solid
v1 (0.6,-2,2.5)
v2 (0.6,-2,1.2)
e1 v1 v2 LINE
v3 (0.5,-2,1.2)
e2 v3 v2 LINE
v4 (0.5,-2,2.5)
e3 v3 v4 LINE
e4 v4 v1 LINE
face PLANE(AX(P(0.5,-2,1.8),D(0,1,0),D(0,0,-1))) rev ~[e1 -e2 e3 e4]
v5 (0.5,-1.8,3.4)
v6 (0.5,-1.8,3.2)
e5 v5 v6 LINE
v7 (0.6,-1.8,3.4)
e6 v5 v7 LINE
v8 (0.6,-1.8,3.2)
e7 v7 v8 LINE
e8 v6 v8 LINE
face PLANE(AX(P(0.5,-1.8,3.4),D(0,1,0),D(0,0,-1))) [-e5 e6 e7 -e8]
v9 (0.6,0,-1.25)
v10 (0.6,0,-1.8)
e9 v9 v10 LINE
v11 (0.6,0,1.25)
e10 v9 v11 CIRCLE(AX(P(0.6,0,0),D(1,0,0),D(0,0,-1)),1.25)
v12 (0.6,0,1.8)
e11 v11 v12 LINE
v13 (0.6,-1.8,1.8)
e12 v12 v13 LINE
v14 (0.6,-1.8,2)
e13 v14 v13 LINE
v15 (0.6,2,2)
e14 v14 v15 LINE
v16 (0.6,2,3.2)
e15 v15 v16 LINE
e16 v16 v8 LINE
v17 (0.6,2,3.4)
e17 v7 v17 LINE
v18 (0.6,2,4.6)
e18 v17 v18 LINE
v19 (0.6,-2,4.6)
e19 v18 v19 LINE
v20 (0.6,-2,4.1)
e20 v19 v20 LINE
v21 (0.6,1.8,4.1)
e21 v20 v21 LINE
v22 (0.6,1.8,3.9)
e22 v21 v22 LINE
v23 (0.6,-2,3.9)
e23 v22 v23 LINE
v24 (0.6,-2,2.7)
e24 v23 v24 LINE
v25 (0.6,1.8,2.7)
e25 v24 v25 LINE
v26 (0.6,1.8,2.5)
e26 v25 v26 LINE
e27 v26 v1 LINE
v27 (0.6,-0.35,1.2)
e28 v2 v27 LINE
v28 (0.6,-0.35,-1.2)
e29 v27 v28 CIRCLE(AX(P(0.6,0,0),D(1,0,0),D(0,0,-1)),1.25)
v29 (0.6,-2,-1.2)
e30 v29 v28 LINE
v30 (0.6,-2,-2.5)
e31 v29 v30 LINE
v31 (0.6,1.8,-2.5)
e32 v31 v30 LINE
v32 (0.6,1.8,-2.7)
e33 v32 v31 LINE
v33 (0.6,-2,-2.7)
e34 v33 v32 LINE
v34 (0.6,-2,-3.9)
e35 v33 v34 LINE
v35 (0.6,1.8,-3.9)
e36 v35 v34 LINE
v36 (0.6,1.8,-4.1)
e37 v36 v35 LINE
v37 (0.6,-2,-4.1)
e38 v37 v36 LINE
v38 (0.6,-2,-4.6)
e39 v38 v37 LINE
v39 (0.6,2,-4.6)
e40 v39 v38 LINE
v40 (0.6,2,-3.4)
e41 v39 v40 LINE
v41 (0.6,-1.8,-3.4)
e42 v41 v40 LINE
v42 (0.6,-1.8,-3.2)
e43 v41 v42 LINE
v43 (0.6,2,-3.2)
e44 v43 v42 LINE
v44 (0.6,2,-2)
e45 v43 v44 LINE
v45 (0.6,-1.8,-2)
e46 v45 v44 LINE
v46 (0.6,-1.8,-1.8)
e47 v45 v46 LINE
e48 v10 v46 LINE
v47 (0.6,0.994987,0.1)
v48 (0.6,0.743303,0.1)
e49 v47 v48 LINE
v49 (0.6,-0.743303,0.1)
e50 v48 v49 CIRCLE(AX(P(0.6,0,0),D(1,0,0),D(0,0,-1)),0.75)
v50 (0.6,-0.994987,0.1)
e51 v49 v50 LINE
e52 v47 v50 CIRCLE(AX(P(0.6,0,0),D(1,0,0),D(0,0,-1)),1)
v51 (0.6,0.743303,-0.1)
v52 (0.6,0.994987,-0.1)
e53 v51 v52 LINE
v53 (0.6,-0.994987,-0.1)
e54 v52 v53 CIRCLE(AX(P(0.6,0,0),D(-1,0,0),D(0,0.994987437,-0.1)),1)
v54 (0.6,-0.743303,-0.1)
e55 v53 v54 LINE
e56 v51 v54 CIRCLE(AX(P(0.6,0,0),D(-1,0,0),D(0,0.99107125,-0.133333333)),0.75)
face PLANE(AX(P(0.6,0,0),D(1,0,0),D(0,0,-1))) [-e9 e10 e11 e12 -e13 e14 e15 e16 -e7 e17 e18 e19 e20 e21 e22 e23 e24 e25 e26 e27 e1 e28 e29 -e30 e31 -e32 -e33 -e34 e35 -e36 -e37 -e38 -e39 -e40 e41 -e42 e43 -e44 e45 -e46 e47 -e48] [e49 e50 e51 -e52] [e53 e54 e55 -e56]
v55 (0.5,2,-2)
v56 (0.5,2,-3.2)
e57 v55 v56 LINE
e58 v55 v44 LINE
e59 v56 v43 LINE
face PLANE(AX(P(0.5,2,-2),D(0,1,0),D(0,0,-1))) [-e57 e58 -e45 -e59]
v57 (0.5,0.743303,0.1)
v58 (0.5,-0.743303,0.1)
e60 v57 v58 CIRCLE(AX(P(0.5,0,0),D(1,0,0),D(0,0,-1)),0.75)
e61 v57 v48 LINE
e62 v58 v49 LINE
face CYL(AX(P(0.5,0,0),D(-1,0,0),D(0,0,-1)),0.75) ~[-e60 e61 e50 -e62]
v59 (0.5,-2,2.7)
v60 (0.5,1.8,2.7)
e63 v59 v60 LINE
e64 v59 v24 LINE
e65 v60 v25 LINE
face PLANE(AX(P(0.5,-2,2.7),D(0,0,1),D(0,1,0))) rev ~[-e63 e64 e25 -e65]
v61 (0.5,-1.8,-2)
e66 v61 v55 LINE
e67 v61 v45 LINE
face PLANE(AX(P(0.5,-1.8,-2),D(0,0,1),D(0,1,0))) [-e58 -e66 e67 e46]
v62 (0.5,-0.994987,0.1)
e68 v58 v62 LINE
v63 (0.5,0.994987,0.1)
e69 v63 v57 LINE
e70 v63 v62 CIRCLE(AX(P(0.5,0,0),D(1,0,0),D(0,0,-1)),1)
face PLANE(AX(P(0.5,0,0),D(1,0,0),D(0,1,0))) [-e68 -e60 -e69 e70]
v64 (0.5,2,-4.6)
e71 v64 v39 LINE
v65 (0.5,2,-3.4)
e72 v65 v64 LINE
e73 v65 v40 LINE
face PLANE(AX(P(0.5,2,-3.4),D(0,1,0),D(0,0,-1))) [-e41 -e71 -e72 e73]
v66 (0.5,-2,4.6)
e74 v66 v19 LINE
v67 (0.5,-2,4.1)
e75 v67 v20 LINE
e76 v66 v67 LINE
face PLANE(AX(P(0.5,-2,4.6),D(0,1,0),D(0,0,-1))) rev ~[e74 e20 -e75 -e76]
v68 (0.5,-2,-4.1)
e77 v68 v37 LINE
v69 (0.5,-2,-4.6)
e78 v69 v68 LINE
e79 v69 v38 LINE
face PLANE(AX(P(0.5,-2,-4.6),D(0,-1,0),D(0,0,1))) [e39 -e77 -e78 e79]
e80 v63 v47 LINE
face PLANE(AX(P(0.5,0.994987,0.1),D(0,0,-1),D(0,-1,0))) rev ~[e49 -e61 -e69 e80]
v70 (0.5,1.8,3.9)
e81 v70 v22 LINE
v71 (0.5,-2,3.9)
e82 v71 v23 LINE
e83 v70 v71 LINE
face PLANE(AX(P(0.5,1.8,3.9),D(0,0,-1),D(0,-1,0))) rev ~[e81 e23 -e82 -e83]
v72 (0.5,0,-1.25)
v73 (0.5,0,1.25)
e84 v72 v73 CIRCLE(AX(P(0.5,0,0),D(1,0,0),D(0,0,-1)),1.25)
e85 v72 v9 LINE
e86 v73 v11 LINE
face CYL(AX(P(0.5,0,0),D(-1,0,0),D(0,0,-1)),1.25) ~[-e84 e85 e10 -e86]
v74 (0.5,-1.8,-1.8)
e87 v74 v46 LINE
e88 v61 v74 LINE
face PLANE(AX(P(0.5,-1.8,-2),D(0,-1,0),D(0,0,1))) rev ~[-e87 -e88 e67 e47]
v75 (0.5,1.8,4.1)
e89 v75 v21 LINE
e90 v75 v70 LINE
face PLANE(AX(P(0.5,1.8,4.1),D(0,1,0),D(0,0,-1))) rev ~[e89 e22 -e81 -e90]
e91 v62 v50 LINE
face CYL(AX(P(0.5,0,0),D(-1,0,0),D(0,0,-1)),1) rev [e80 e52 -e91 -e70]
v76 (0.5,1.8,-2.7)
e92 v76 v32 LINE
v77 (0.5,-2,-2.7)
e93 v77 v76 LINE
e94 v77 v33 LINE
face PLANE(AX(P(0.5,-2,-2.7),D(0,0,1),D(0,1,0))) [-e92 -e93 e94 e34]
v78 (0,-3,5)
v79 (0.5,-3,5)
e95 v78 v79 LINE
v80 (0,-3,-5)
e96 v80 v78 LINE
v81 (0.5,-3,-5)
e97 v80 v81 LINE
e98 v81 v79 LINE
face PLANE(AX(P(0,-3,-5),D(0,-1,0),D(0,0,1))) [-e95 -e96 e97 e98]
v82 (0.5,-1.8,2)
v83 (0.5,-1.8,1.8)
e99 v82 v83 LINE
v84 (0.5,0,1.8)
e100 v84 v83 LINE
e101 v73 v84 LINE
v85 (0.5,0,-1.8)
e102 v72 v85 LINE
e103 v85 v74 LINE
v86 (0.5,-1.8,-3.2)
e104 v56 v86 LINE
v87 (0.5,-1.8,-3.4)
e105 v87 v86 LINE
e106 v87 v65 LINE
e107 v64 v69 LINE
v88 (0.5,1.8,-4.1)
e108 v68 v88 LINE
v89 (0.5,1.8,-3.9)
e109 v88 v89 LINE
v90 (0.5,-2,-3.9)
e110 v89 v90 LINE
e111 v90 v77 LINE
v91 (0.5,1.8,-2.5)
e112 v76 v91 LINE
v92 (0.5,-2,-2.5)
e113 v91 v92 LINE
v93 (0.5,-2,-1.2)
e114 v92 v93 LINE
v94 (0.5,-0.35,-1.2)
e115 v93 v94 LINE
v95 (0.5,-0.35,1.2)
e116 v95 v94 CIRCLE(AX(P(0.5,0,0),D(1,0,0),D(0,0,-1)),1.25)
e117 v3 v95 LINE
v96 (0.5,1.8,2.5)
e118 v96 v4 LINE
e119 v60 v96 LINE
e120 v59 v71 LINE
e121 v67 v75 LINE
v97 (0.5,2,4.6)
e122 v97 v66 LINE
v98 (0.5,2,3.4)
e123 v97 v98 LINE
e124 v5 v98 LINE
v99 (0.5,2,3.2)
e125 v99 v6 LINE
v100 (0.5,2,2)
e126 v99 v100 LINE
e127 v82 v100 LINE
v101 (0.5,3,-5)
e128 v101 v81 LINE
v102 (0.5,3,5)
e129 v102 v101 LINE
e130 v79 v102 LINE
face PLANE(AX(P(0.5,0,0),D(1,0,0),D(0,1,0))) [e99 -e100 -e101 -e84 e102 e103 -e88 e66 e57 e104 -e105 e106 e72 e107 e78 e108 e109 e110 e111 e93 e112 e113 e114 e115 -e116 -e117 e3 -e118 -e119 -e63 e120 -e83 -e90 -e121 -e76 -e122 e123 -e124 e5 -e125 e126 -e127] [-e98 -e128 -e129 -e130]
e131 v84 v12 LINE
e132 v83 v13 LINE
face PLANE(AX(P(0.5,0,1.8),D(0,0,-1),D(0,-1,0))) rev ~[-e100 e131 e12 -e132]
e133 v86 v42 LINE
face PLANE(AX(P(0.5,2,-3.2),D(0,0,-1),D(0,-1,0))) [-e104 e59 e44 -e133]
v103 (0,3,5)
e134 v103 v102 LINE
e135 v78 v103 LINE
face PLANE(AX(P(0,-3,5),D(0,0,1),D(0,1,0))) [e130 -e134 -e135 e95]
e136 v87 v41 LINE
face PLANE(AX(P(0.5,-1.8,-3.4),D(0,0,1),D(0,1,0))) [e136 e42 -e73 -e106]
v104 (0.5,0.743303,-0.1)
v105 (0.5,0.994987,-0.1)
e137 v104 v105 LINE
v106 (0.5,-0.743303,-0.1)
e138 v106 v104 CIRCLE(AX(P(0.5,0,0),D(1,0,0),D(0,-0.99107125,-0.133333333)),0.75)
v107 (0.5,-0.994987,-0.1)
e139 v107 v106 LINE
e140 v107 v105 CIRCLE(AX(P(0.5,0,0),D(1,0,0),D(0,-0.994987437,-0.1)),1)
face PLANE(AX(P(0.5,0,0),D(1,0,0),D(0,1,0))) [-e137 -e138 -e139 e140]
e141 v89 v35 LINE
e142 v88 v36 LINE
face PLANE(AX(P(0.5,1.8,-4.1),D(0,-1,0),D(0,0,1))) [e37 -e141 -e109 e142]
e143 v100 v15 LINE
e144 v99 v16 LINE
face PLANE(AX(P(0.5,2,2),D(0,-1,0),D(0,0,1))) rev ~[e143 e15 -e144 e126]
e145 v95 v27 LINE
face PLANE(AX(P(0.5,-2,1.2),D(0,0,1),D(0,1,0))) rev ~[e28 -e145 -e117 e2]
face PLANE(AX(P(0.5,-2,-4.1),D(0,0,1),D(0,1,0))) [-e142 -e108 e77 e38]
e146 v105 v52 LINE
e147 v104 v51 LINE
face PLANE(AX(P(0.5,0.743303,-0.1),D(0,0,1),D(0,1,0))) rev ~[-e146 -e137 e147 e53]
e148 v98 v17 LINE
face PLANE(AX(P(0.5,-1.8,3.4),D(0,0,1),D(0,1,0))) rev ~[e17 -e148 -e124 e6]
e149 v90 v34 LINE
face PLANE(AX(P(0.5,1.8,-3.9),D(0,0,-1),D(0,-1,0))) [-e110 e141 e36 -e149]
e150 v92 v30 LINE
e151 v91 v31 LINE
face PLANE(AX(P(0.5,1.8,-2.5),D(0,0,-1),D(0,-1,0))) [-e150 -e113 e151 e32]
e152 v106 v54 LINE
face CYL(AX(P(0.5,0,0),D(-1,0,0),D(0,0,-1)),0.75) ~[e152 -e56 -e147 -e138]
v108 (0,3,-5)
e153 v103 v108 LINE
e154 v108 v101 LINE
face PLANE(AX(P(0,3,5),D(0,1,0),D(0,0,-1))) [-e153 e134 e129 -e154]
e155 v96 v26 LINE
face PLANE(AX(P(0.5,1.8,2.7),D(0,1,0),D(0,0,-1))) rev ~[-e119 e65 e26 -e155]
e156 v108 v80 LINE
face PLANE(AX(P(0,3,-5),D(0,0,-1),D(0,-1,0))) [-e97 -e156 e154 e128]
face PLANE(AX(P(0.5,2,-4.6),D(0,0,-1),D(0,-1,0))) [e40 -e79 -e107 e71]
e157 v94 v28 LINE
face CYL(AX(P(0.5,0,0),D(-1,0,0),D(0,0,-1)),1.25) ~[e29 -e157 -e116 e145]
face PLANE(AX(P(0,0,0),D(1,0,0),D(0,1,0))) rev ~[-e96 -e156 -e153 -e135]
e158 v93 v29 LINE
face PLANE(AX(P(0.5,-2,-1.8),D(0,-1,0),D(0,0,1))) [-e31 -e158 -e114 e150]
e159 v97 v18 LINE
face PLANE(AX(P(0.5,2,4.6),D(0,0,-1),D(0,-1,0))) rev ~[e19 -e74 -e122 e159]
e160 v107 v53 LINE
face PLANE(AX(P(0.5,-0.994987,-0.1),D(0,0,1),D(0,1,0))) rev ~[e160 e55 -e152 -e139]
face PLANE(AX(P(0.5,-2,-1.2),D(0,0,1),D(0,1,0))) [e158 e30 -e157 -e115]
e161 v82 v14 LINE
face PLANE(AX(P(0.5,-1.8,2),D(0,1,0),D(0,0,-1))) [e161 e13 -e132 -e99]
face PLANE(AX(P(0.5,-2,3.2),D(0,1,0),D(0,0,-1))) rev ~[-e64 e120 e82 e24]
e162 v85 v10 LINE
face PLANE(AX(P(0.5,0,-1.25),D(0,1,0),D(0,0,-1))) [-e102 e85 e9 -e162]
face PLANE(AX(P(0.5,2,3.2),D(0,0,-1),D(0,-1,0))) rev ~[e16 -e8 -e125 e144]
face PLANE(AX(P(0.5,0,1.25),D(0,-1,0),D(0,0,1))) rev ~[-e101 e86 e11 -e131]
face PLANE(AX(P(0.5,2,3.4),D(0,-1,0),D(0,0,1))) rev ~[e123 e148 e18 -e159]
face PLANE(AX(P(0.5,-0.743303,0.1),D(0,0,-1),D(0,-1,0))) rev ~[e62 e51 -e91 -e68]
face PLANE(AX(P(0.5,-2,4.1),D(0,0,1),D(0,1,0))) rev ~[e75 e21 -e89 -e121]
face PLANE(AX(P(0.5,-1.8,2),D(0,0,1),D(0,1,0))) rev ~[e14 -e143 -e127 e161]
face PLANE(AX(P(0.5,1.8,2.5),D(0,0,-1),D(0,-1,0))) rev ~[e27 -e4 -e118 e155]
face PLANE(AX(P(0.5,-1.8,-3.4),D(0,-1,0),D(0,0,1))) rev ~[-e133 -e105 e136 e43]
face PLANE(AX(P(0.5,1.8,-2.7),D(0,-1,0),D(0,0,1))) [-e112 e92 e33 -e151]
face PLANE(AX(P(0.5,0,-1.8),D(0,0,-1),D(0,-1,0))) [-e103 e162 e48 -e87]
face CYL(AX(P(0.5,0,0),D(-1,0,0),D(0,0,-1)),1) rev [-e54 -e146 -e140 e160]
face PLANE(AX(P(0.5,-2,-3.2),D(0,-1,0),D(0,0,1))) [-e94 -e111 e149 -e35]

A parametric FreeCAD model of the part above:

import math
import FreeCAD as App
import Part
import Sketcher
from FreeCAD import Vector


def add_polygon(sketch, points):
    """Adds a closed chain of lines whose ends are joined by coincident constraints."""
    first, n = sketch.GeometryCount, len(points)
    for a, b in zip(points, points[1:] + points[:1]):
        sketch.addGeometry(Part.LineSegment(App.Vector(*a, 0), App.Vector(*b, 0)), False)
    for i in range(n):
        sketch.addConstraint(Sketcher.Constraint("Coincident", first + i, 2, first + (i + 1) % n, 1))

doc = App.newDocument("Part")
body = doc.addObject("PartDesign::Body", "Body")

sketch1 = body.newObject("Sketcher::SketchObject", "Sketch")
sketch1.AttachmentSupport = (doc.getObject("YZ_Plane"), [""])
sketch1.MapMode = "FlatFace"
add_polygon(sketch1, [(3, 5), (-3, 5), (-3, -5), (3, -5)])
sketch1.addConstraint([
    Sketcher.Constraint("Horizontal", 0),
    Sketcher.Constraint("Vertical", 1),
    Sketcher.Constraint("Horizontal", 2),
    Sketcher.Constraint("Vertical", 3),
    Sketcher.Constraint("Symmetric", 0, 2, 2, 2, -1, 1),
    Sketcher.Constraint("DistanceX", 0, 2, 0, 1, 6.0),
    Sketcher.Constraint("DistanceY", 1, 2, 1, 1, 10.0),
])
pad1 = body.newObject("PartDesign::Pad", "Pad")
pad1.Profile = sketch1
pad1.Length = 0.5

sketch2 = body.newObject("Sketcher::SketchObject", "Sketch001")
sketch2.AttachmentSupport = (doc.getObject("YZ_Plane"), [""])
sketch2.MapMode = "FlatFace"
sketch2.AttachmentOffset = App.Placement(Vector(0, 0, 0.5), App.Rotation())
sketch2.addGeometry([
    Part.ArcOfCircle(Part.Circle(Vector(0, 0, 0), Vector(0, 0, 1), 1.25), math.radians(106), math.radians(254)),
    Part.LineSegment(Vector(-0.35, -1.2, 0), Vector(-2, -1.2, 0)),
    Part.LineSegment(Vector(-2, -1.2, 0), Vector(-2, -2.5, 0)),
    Part.LineSegment(Vector(-2, -2.5, 0), Vector(1.8, -2.5, 0)),
    Part.LineSegment(Vector(1.8, -2.5, 0), Vector(1.8, -2.7, 0)),
    Part.LineSegment(Vector(1.8, -2.7, 0), Vector(-2, -2.7, 0)),
    Part.LineSegment(Vector(-2, -2.7, 0), Vector(-2, -3.9, 0)),
    Part.LineSegment(Vector(-2, -3.9, 0), Vector(1.8, -3.9, 0)),
    Part.LineSegment(Vector(1.8, -3.9, 0), Vector(1.8, -4.1, 0)),
    Part.LineSegment(Vector(1.8, -4.1, 0), Vector(-2, -4.1, 0)),
    Part.LineSegment(Vector(-2, -4.1, 0), Vector(-2, -4.6, 0)),
    Part.LineSegment(Vector(-2, -4.6, 0), Vector(2, -4.6, 0)),
    Part.LineSegment(Vector(2, -4.6, 0), Vector(2, -3.4, 0)),
    Part.LineSegment(Vector(2, -3.4, 0), Vector(-1.8, -3.4, 0)),
    Part.LineSegment(Vector(-1.8, -3.4, 0), Vector(-1.8, -3.2, 0)),
    Part.LineSegment(Vector(-1.8, -3.2, 0), Vector(2, -3.2, 0)),
    Part.LineSegment(Vector(2, -3.2, 0), Vector(2, -2, 0)),
    Part.LineSegment(Vector(2, -2, 0), Vector(-1.8, -2, 0)),
    Part.LineSegment(Vector(-1.8, -2, 0), Vector(-1.8, -1.8, 0)),
    Part.LineSegment(Vector(-1.8, -1.8, 0), Vector(0, -1.8, 0)),
    Part.LineSegment(Vector(0, -1.8, 0), Vector(0, -1.25, 0)),
    Part.ArcOfCircle(Part.Circle(Vector(0, 0, 0), Vector(0, 0, 1), 1.25), math.radians(-90), math.radians(90)),
    Part.LineSegment(Vector(0, 1.25, 0), Vector(0, 1.8, 0)),
    Part.LineSegment(Vector(0, 1.8, 0), Vector(-1.8, 1.8, 0)),
    Part.LineSegment(Vector(-1.8, 1.8, 0), Vector(-1.8, 2, 0)),
    Part.LineSegment(Vector(-1.8, 2, 0), Vector(2, 2, 0)),
    Part.LineSegment(Vector(2, 2, 0), Vector(2, 3.2, 0)),
    Part.LineSegment(Vector(2, 3.2, 0), Vector(-1.8, 3.2, 0)),
    Part.LineSegment(Vector(-1.8, 3.2, 0), Vector(-1.8, 3.4, 0)),
    Part.LineSegment(Vector(-1.8, 3.4, 0), Vector(2, 3.4, 0)),
    Part.LineSegment(Vector(2, 3.4, 0), Vector(2, 4.6, 0)),
    Part.LineSegment(Vector(2, 4.6, 0), Vector(-2, 4.6, 0)),
    Part.LineSegment(Vector(-2, 4.6, 0), Vector(-2, 4.1, 0)),
    Part.LineSegment(Vector(-2, 4.1, 0), Vector(1.8, 4.1, 0)),
    Part.LineSegment(Vector(1.8, 4.1, 0), Vector(1.8, 3.9, 0)),
    Part.LineSegment(Vector(1.8, 3.9, 0), Vector(-2, 3.9, 0)),
    Part.LineSegment(Vector(-2, 3.9, 0), Vector(-2, 2.7, 0)),
    Part.LineSegment(Vector(-2, 2.7, 0), Vector(1.8, 2.7, 0)),
    Part.LineSegment(Vector(1.8, 2.7, 0), Vector(1.8, 2.5, 0)),
    Part.LineSegment(Vector(1.8, 2.5, 0), Vector(-2, 2.5, 0)),
    Part.LineSegment(Vector(-2, 2.5, 0), Vector(-2, 1.2, 0)),
    Part.LineSegment(Vector(-2, 1.2, 0), Vector(-0.35, 1.2, 0)),
    Part.ArcOfCircle(Part.Circle(Vector(0, 0, 0), Vector(0, 0, 1), 0.75), math.radians(-172), math.radians(-8)),
    Part.LineSegment(Vector(0.74, -0.1, 0), Vector(0.99, -0.1, 0)),
    Part.ArcOfCircle(Part.Circle(Vector(0, 0, 0), Vector(0, 0, 1), 1), math.radians(-174), math.radians(-6)),
    Part.LineSegment(Vector(-0.99, -0.1, 0), Vector(-0.74, -0.1, 0)),
    Part.LineSegment(Vector(0.99, 0.1, 0), Vector(0.74, 0.1, 0)),
    Part.ArcOfCircle(Part.Circle(Vector(0, 0, 0), Vector(0, 0, 1), 0.75), math.radians(8), math.radians(172)),
    Part.LineSegment(Vector(-0.74, 0.1, 0), Vector(-0.99, 0.1, 0)),
    Part.ArcOfCircle(Part.Circle(Vector(0, 0, 0), Vector(0, 0, 1), 1), math.radians(6), math.radians(174)),
], False)
sketch2.addConstraint([
    Sketcher.Constraint("Coincident", 0, 2, 1, 1),
    Sketcher.Constraint("Coincident", 1, 2, 2, 1),
    Sketcher.Constraint("Coincident", 2, 2, 3, 1),
    Sketcher.Constraint("Coincident", 3, 2, 4, 1),
    Sketcher.Constraint("Coincident", 4, 2, 5, 1),
    Sketcher.Constraint("Coincident", 5, 2, 6, 1),
    Sketcher.Constraint("Coincident", 6, 2, 7, 1),
    Sketcher.Constraint("Coincident", 7, 2, 8, 1),
    Sketcher.Constraint("Coincident", 8, 2, 9, 1),
    Sketcher.Constraint("Coincident", 9, 2, 10, 1),
    Sketcher.Constraint("Coincident", 10, 2, 11, 1),
    Sketcher.Constraint("Coincident", 11, 2, 12, 1),
    Sketcher.Constraint("Coincident", 12, 2, 13, 1),
    Sketcher.Constraint("Coincident", 13, 2, 14, 1),
    Sketcher.Constraint("Coincident", 14, 2, 15, 1),
    Sketcher.Constraint("Coincident", 15, 2, 16, 1),
    Sketcher.Constraint("Coincident", 16, 2, 17, 1),
    Sketcher.Constraint("Coincident", 17, 2, 18, 1),
    Sketcher.Constraint("Coincident", 18, 2, 19, 1),
    Sketcher.Constraint("Coincident", 19, 2, 20, 1),
    Sketcher.Constraint("Coincident", 20, 2, 21, 1),
    Sketcher.Constraint("Coincident", 21, 2, 22, 1),
    Sketcher.Constraint("Coincident", 22, 2, 23, 1),
    Sketcher.Constraint("Coincident", 23, 2, 24, 1),
    Sketcher.Constraint("Coincident", 24, 2, 25, 1),
    Sketcher.Constraint("Coincident", 25, 2, 26, 1),
    Sketcher.Constraint("Coincident", 26, 2, 27, 1),
    Sketcher.Constraint("Coincident", 27, 2, 28, 1),
    Sketcher.Constraint("Coincident", 28, 2, 29, 1),
    Sketcher.Constraint("Coincident", 29, 2, 30, 1),
    Sketcher.Constraint("Coincident", 30, 2, 31, 1),
    Sketcher.Constraint("Coincident", 31, 2, 32, 1),
    Sketcher.Constraint("Coincident", 32, 2, 33, 1),
    Sketcher.Constraint("Coincident", 33, 2, 34, 1),
    Sketcher.Constraint("Coincident", 34, 2, 35, 1),
    Sketcher.Constraint("Coincident", 35, 2, 36, 1),
    Sketcher.Constraint("Coincident", 36, 2, 37, 1),
    Sketcher.Constraint("Coincident", 37, 2, 38, 1),
    Sketcher.Constraint("Coincident", 38, 2, 39, 1),
    Sketcher.Constraint("Coincident", 39, 2, 40, 1),
    Sketcher.Constraint("Coincident", 40, 2, 41, 1),
    Sketcher.Constraint("Coincident", 41, 2, 0, 1),
    Sketcher.Constraint("Coincident", 42, 2, 43, 1),
    Sketcher.Constraint("Coincident", 43, 2, 44, 2),
    Sketcher.Constraint("Coincident", 44, 1, 45, 1),
    Sketcher.Constraint("Coincident", 45, 2, 42, 1),
    Sketcher.Constraint("Coincident", 46, 2, 47, 1),
    Sketcher.Constraint("Coincident", 47, 2, 48, 1),
    Sketcher.Constraint("Coincident", 48, 2, 49, 2),
    Sketcher.Constraint("Coincident", 49, 1, 46, 1),
    Sketcher.Constraint("Horizontal", 1),
    Sketcher.Constraint("Vertical", 2),
    Sketcher.Constraint("Horizontal", 3),
    Sketcher.Constraint("Vertical", 4),
    Sketcher.Constraint("Horizontal", 5),
    Sketcher.Constraint("Vertical", 6),
    Sketcher.Constraint("Horizontal", 7),
    Sketcher.Constraint("Vertical", 8),
    Sketcher.Constraint("Horizontal", 9),
    Sketcher.Constraint("Vertical", 10),
    Sketcher.Constraint("Horizontal", 11),
    Sketcher.Constraint("Vertical", 12),
    Sketcher.Constraint("Horizontal", 13),
    Sketcher.Constraint("Vertical", 14),
    Sketcher.Constraint("Horizontal", 15),
    Sketcher.Constraint("Vertical", 16),
    Sketcher.Constraint("Horizontal", 17),
    Sketcher.Constraint("Vertical", 18),
    Sketcher.Constraint("Horizontal", 19),
    Sketcher.Constraint("Vertical", 20),
    Sketcher.Constraint("Vertical", 22),
    Sketcher.Constraint("Horizontal", 23),
    Sketcher.Constraint("Vertical", 24),
    Sketcher.Constraint("Horizontal", 25),
    Sketcher.Constraint("Vertical", 26),
    Sketcher.Constraint("Horizontal", 27),
    Sketcher.Constraint("Vertical", 28),
    Sketcher.Constraint("Horizontal", 29),
    Sketcher.Constraint("Vertical", 30),
    Sketcher.Constraint("Horizontal", 31),
    Sketcher.Constraint("Vertical", 32),
    Sketcher.Constraint("Horizontal", 33),
    Sketcher.Constraint("Vertical", 34),
    Sketcher.Constraint("Horizontal", 35),
    Sketcher.Constraint("Vertical", 36),
    Sketcher.Constraint("Horizontal", 37),
    Sketcher.Constraint("Vertical", 38),
    Sketcher.Constraint("Horizontal", 39),
    Sketcher.Constraint("Vertical", 40),
    Sketcher.Constraint("Horizontal", 41),
    Sketcher.Constraint("Horizontal", 43),
    Sketcher.Constraint("Horizontal", 45),
    Sketcher.Constraint("Horizontal", 46),
    Sketcher.Constraint("Horizontal", 48),
    Sketcher.Constraint("Coincident", 0, 3, -1, 1),
    Sketcher.Constraint("Coincident", 21, 3, -1, 1),
    Sketcher.Constraint("Coincident", 42, 3, -1, 1),
    Sketcher.Constraint("Coincident", 44, 3, -1, 1),
    Sketcher.Constraint("Coincident", 47, 3, -1, 1),
    Sketcher.Constraint("Coincident", 49, 3, -1, 1),
    Sketcher.Constraint("Equal", 0, 21),
    Sketcher.Constraint("Equal", 42, 47),
    Sketcher.Constraint("Equal", 44, 49),
    Sketcher.Constraint("Symmetric", 19, 2, 22, 2, -1, 1),
    Sketcher.Constraint("Symmetric", 10, 2, 30, 2, -1, 1),
    Sketcher.Constraint("Symmetric", 17, 2, 24, 2, -1),
    Sketcher.Constraint("Symmetric", 15, 2, 26, 2, -1),
    Sketcher.Constraint("Symmetric", 13, 2, 28, 2, -1),
    Sketcher.Constraint("Symmetric", 9, 2, 32, 2, -1),
    Sketcher.Constraint("Symmetric", 7, 2, 34, 2, -1),
    Sketcher.Constraint("Symmetric", 5, 2, 36, 2, -1),
    Sketcher.Constraint("Symmetric", 3, 2, 38, 2, -1),
    Sketcher.Constraint("Symmetric", 1, 2, 40, 2, -1),
    Sketcher.Constraint("PointOnObject", 19, 2, -2),
    Sketcher.Constraint("Horizontal", 43, 2, 44, 1),
    Sketcher.Constraint("Horizontal", 46, 2, 47, 2),
    Sketcher.Constraint("Vertical", 2, 2, 5, 2),
    Sketcher.Constraint("Vertical", 4, 2, 7, 2),
    Sketcher.Constraint("Vertical", 6, 2, 9, 2),
    Sketcher.Constraint("Vertical", 12, 2, 15, 2),
    Sketcher.Constraint("Vertical", 14, 2, 17, 2),
    Sketcher.Constraint("Vertical", 26, 2, 29, 2),
    Sketcher.Constraint("Vertical", 42, 2, 46, 2),
    Sketcher.Constraint("Equal", 9, 13),
    Sketcher.Constraint("Equal", 4, 8),
    Sketcher.Constraint("Equal", 6, 12),
    Sketcher.Constraint("Equal", 8, 14),
    Sketcher.Constraint("Equal", 12, 16),
    Sketcher.Constraint("Equal", 14, 18),
    Sketcher.Constraint("Radius", 44, 1.0),
    Sketcher.Constraint("DistanceX", 11, 1, 11, 2, 4.0),
    Sketcher.Constraint("Radius", 0, 1.25),
    Sketcher.Constraint("Radius", 42, 0.75),
    Sketcher.Constraint("DistanceY", 4, 2, 4, 1, 0.2),
    Sketcher.Constraint("DistanceY", 10, 2, 10, 1, 0.5),
    Sketcher.Constraint("DistanceY", 16, 2, -1, 1, 2.0),
    Sketcher.Constraint("DistanceY", 2, 2, -1, 1, 2.5),
    Sketcher.Constraint("DistanceY", 42, 2, -1, 1, 0.1),
    Sketcher.Constraint("DistanceY", 4, 2, 0, 2, 1.5),
    Sketcher.Constraint("DistanceX", 8, 2, 11, 2, 0.2),
])
pad2 = body.newObject("PartDesign::Pad", "Pad001")
pad2.Profile = sketch2
pad2.Length = 0.1

doc.recompute()
